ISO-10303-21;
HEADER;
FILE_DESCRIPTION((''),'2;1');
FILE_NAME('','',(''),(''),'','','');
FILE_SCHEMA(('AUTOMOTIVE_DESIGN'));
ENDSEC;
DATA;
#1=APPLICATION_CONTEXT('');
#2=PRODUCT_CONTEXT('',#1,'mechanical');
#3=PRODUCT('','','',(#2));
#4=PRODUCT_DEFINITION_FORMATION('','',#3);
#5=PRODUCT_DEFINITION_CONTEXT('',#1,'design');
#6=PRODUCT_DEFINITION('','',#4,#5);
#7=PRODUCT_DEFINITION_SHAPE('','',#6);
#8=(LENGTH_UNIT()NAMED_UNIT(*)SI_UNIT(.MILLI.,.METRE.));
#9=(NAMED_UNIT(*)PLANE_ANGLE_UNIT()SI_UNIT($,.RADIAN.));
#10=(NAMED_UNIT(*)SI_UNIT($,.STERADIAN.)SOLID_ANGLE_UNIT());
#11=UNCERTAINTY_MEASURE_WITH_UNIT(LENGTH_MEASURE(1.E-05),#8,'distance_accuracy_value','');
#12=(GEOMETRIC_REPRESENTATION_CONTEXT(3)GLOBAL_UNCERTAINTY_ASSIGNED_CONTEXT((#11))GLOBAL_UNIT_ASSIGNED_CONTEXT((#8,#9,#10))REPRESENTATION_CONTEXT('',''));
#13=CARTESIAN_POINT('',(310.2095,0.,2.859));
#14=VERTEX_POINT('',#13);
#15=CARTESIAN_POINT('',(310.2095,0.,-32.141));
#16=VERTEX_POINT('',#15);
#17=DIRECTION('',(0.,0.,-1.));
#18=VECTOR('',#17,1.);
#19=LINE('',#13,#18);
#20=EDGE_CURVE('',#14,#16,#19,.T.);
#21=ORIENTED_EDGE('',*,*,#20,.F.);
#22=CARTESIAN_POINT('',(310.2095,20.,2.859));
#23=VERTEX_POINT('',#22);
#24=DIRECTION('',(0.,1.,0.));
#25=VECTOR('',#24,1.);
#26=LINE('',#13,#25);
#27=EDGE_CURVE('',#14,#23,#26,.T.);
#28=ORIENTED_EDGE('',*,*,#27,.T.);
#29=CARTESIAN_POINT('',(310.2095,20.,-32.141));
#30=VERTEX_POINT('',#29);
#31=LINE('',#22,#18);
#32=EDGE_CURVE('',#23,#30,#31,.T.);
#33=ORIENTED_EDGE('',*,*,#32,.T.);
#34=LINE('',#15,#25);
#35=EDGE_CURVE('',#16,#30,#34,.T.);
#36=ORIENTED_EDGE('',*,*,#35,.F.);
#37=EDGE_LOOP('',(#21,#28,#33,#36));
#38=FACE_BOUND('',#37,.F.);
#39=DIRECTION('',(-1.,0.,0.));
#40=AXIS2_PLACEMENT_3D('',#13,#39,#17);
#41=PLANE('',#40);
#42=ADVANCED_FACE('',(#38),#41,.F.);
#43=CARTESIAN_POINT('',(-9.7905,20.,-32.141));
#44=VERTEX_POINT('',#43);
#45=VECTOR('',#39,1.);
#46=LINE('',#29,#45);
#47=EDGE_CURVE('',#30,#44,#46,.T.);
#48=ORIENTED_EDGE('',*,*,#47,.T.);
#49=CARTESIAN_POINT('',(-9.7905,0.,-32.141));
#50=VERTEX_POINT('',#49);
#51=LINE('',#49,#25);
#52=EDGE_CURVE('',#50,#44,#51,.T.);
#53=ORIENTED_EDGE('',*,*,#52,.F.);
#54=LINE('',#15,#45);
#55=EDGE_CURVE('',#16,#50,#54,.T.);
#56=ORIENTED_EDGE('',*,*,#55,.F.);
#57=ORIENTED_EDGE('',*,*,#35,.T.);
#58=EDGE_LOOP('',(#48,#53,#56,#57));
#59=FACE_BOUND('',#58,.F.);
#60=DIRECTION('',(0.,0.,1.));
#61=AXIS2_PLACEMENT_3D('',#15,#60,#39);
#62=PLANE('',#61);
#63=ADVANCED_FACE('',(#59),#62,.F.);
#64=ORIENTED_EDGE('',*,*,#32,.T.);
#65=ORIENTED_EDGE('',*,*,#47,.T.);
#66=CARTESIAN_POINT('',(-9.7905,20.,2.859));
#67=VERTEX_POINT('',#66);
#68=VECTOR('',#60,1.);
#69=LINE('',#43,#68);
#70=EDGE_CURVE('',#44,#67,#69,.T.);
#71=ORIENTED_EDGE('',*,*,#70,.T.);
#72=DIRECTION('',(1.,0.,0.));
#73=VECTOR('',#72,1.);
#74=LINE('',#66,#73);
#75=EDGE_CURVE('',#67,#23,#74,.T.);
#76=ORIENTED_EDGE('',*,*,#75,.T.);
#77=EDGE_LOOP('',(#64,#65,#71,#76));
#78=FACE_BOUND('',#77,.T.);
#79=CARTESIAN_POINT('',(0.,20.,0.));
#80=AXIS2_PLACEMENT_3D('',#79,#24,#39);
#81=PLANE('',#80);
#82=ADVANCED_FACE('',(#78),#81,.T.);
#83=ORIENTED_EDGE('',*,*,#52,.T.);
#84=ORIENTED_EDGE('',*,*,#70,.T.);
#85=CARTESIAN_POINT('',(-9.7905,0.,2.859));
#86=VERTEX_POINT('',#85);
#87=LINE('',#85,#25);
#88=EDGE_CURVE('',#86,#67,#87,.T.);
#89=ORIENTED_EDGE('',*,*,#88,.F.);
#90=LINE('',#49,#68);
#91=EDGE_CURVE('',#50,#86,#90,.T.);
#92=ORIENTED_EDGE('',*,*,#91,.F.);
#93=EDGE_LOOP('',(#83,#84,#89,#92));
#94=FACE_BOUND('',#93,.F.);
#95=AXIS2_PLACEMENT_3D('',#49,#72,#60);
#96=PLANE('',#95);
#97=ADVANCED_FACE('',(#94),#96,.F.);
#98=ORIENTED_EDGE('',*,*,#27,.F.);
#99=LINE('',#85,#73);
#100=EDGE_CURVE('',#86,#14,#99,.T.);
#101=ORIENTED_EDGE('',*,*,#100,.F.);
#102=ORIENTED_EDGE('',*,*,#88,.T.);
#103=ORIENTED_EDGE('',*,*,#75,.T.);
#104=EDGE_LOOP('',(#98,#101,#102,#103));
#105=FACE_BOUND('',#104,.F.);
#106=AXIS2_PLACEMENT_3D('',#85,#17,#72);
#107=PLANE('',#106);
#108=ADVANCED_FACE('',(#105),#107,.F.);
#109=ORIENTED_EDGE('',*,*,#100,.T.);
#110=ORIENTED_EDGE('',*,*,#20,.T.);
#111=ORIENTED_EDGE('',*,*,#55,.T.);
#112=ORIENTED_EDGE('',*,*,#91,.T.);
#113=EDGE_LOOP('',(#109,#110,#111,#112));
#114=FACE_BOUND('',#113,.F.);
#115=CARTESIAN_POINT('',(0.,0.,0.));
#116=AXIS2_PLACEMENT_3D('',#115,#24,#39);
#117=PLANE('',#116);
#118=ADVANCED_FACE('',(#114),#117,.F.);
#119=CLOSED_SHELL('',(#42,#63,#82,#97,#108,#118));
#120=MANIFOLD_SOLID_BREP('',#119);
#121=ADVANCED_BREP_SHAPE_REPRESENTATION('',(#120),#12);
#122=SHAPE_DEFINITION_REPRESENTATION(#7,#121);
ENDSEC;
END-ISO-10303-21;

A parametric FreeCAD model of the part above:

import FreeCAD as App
import Part
import Sketcher
from FreeCAD import Vector
Q = App.Units.Quantity

doc = App.newDocument("Part")
params = doc.addObject("Spreadsheet::Sheet", "Params")
for row, (alias, value) in enumerate([
    ("sketch1_width", "320 mm"),
    ("sketch1_height", "35 mm"),
    ("pad1_length", "20 mm"),
], start=1):
    params.set(f"A{row}", alias)
    params.set(f"B{row}", "=" + value)
    params.setAlias(f"B{row}", alias)

body = doc.addObject("PartDesign::Body", "Body")

# Sketch on XZ plane
sketch1 = body.newObject("Sketcher::SketchObject", "Sketch")
sketch1.AttachmentSupport = (doc.getObject("XZ_Plane"), [""])
sketch1.MapMode = "FlatFace"
sketch1.addGeometry([
    Part.LineSegment(Vector(-10, -32, 0), Vector(-10, 3, 0)),
    Part.LineSegment(Vector(-10, 3, 0), Vector(310, 3, 0)),
    Part.LineSegment(Vector(310, 3, 0), Vector(310, -32, 0)),
    Part.LineSegment(Vector(310, -32, 0), Vector(-10, -32, 0)),
], False)
sketch1.addConstraint([
    Sketcher.Constraint("Coincident", 0, 2, 1, 1),
    Sketcher.Constraint("Coincident", 1, 2, 2, 1),
    Sketcher.Constraint("Coincident", 2, 2, 3, 1),
    Sketcher.Constraint("Coincident", 3, 2, 0, 1),
    Sketcher.Constraint("Vertical", 0),
    Sketcher.Constraint("Horizontal", 1),
    Sketcher.Constraint("Vertical", 2),
    Sketcher.Constraint("Horizontal", 3),
    Sketcher.Constraint("DistanceX", 1, 1, 1, 2, Q("320 mm")),
    Sketcher.Constraint("DistanceY", 0, 1, 0, 2, Q("35 mm")),
    Sketcher.Constraint("DistanceY", -1, 1, 0, 2, Q("2.859 mm")),
    Sketcher.Constraint("DistanceX", 0, 2, -1, 1, Q("9.7905 mm")),
])
sketch1.setExpression("Constraints[8]", "Params.sketch1_width")
sketch1.setExpression("Constraints[9]", "Params.sketch1_height")
pad1 = body.newObject("PartDesign::Pad", "Pad")
pad1.Profile = sketch1
pad1.setExpression("Length", "Params.pad1_length")
pad1.Reversed = True

doc.recompute()
